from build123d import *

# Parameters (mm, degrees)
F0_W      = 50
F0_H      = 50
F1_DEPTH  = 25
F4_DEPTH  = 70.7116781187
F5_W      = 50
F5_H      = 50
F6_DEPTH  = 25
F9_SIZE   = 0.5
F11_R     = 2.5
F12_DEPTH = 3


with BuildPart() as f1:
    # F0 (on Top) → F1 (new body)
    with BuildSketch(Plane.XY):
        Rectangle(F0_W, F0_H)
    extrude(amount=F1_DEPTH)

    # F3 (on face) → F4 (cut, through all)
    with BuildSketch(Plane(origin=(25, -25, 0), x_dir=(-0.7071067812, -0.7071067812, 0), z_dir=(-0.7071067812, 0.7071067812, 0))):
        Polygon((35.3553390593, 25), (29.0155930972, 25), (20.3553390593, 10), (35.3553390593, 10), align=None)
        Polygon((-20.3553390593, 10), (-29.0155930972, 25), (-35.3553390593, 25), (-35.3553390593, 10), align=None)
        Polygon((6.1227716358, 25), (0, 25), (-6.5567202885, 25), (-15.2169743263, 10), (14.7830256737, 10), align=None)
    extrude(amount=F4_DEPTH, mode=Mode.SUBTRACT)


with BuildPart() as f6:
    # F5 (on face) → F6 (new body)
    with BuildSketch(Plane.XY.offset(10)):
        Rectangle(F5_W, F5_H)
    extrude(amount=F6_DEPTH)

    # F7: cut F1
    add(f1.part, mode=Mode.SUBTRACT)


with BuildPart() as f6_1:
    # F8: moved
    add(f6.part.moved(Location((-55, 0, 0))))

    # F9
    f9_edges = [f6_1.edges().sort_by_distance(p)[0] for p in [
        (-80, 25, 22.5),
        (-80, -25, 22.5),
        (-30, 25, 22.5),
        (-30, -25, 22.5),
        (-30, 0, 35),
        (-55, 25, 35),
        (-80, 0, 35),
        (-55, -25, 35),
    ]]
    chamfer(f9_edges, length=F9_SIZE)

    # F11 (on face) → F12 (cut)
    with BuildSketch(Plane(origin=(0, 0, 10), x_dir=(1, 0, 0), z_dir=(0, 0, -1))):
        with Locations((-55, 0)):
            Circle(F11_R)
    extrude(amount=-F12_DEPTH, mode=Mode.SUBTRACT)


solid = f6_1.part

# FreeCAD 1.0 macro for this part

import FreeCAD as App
import Part
import Sketcher

V = App.Vector
Q = App.Units.Quantity


def edges_at(feature, points):
    """Names of the edges that pass closest to the given points."""
    edges = feature.Shape.Edges
    near = lambda p: min(range(len(edges)), key=lambda i: edges[i].distToShape(Part.Vertex(*p))[0])
    return sorted({f"Edge{near(p) + 1}" for p in points})

doc = App.newDocument("Part")
body = doc.addObject("PartDesign::Body", "Body")

sketch1 = body.newObject("Sketcher::SketchObject", "Sketch")
sketch1.AttachmentSupport = (doc.getObject("XY_Plane"), [""])
sketch1.MapMode = "FlatFace"
sketch1.addGeometry([
    Part.LineSegment(V(-25, 25, 0), V(-25, -25, 0)),
    Part.LineSegment(V(-25, -25, 0), V(25, -25, 0)),
    Part.LineSegment(V(25, -25, 0), V(25, 25, 0)),
    Part.LineSegment(V(25, 25, 0), V(-25, 25, 0)),
], False)
sketch1.addConstraint([
    Sketcher.Constraint("Coincident", 0, 2, 1, 1),
    Sketcher.Constraint("Coincident", 1, 2, 2, 1),
    Sketcher.Constraint("Coincident", 2, 2, 3, 1),
    Sketcher.Constraint("Coincident", 3, 2, 0, 1),
    Sketcher.Constraint("Vertical", 0),
    Sketcher.Constraint("Horizontal", 1),
    Sketcher.Constraint("Vertical", 2),
    Sketcher.Constraint("Horizontal", 3),
    Sketcher.Constraint("Symmetric", 0, 2, 2, 2, -1, 1),
    Sketcher.Constraint("Equal", 3, 0),
    Sketcher.Constraint("DistanceX", 1, 1, 1, 2, Q("50 mm")),
])
pad1 = body.newObject("PartDesign::Pad", "Pad")
pad1.Profile = sketch1
pad1.Length = 25

sketch2 = body.newObject("Sketcher::SketchObject", "Sketch001")
sketch2.Placement = App.Placement(V(25, -25, 0), App.Rotation(V(-0.707106781, -0.707106781, 0), V(0, 0, 0.999999999), V(-0.707106781, 0.707106781, 0), "ZXY"))
sketch2.addGeometry([
    Part.LineSegment(V(35.355339, 25, 0), V(29.015593, 25, 0)),
    Part.LineSegment(V(29.015593, 25, 0), V(20.355339, 10, 0)),
    Part.LineSegment(V(20.355339, 10, 0), V(35.355339, 10, 0)),
    Part.LineSegment(V(35.355339, 10, 0), V(35.355339, 25, 0)),
    Part.LineSegment(V(-20.355339, 10, 0), V(-29.015593, 25, 0)),
    Part.LineSegment(V(-29.015593, 25, 0), V(-35.355339, 25, 0)),
    Part.LineSegment(V(-35.355339, 25, 0), V(-35.355339, 10, 0)),
    Part.LineSegment(V(-35.355339, 10, 0), V(-20.355339, 10, 0)),
    Part.LineSegment(V(6.122772, 25, 0), V(-6.55672, 25, 0)),
    Part.LineSegment(V(-6.55672, 25, 0), V(-15.216974, 10, 0)),
    Part.LineSegment(V(-15.216974, 10, 0), V(14.783026, 10, 0)),
    Part.LineSegment(V(14.783026, 10, 0), V(6.122772, 25, 0)),
], False)
sketch2.addConstraint([
    Sketcher.Constraint("Coincident", 0, 2, 1, 1),
    Sketcher.Constraint("Coincident", 1, 2, 2, 1),
    Sketcher.Constraint("Coincident", 2, 2, 3, 1),
    Sketcher.Constraint("Coincident", 3, 2, 0, 1),
    Sketcher.Constraint("Coincident", 4, 2, 5, 1),
    Sketcher.Constraint("Coincident", 5, 2, 6, 1),
    Sketcher.Constraint("Coincident", 6, 2, 7, 1),
    Sketcher.Constraint("Coincident", 7, 2, 4, 1),
    Sketcher.Constraint("Coincident", 8, 2, 9, 1),
    Sketcher.Constraint("Coincident", 9, 2, 10, 1),
    Sketcher.Constraint("Coincident", 10, 2, 11, 1),
    Sketcher.Constraint("Coincident", 11, 2, 8, 1),
    Sketcher.Constraint("Horizontal", 0),
    Sketcher.Constraint("Horizontal", 2),
    Sketcher.Constraint("Vertical", 3),
    Sketcher.Constraint("Horizontal", 5),
    Sketcher.Constraint("Vertical", 6),
    Sketcher.Constraint("Horizontal", 7),
    Sketcher.Constraint("Horizontal", 8),
    Sketcher.Constraint("Horizontal", 10),
    Sketcher.Constraint("Symmetric", 0, 2, 4, 2, -2),
    Sketcher.Constraint("Symmetric", 2, 2, 6, 2, -2),
    Sketcher.Constraint("Parallel", 1, 9),
    Sketcher.Constraint("Parallel", 4, 11),
    Sketcher.Constraint("Horizontal", 5, 2, 8, 2),
    Sketcher.Constraint("Horizontal", 7, 2, 9, 2),
    Sketcher.Constraint("Equal", 2, 7),
    Sketcher.Constraint("Equal", 7, 3),
    Sketcher.Constraint("DistanceX", 2, 1, 2, 2, Q("15 mm")),
    Sketcher.Constraint("DistanceX", 10, 1, 10, 2, Q("30 mm")),
    Sketcher.Constraint("Angle", 1, Q("-120 deg")),
    Sketcher.Constraint("DistanceY", -1, 1, 0, 2, Q("25 mm")),
    Sketcher.Constraint("DistanceX", -1, 1, 1, 2, Q("20.355339 mm")),
    Sketcher.Constraint("DistanceX", 8, 2, -1, 1, Q("6.55672 mm")),
])
pocket1 = body.newObject("PartDesign::Pocket", "Pocket")
pocket1.Profile = sketch2
pocket1.Type = "ThroughAll"
pocket1.Reversed = True
body2 = doc.addObject("PartDesign::Body", "Body001")

sketch3 = body2.newObject("Sketcher::SketchObject", "Sketch002")
sketch3.AttachmentSupport = (doc.getObject("XY_Plane001"), [""])
sketch3.MapMode = "FlatFace"
sketch3.AttachmentOffset = App.Placement(V(0, 0, 10), App.Rotation())
sketch3.addGeometry([
    Part.LineSegment(V(-25, 25, 0), V(-25, -25, 0)),
    Part.LineSegment(V(-25, -25, 0), V(25, -25, 0)),
    Part.LineSegment(V(25, -25, 0), V(25, 25, 0)),
    Part.LineSegment(V(25, 25, 0), V(-25, 25, 0)),
], False)
sketch3.addConstraint([
    Sketcher.Constraint("Coincident", 0, 2, 1, 1),
    Sketcher.Constraint("Coincident", 1, 2, 2, 1),
    Sketcher.Constraint("Coincident", 2, 2, 3, 1),
    Sketcher.Constraint("Coincident", 3, 2, 0, 1),
    Sketcher.Constraint("Vertical", 0),
    Sketcher.Constraint("Horizontal", 1),
    Sketcher.Constraint("Vertical", 2),
    Sketcher.Constraint("Horizontal", 3),
    Sketcher.Constraint("Symmetric", 0, 2, 2, 2, -1, 1),
    Sketcher.Constraint("Equal", 3, 0),
    Sketcher.Constraint("DistanceX", 1, 1, 1, 2, Q("50 mm")),
])
pad2 = body2.newObject("PartDesign::Pad", "Pad001")
pad2.Profile = sketch3
pad2.Length = 25
doc.recompute()

boolean = body2.newObject("PartDesign::Boolean", "Boolean")
boolean.Type = "Cut"
boolean.addObjects([body])
body3 = doc.addObject("PartDesign::Body", "Body002")
doc.recompute()

body2.Placement = App.Placement(V(-55, 0, 0), App.Rotation(V(0, 0, 1), 0))
boolean2 = body3.newObject("PartDesign::Boolean", "Boolean001")
boolean2.Type = "Fuse"
boolean2.addObjects([body2])
doc.recompute()

chamfer = body3.newObject("PartDesign::Chamfer", "Chamfer")
chamfer.Base = (boolean2, edges_at(boolean2, [
    (-80, 25, 22.5),
    (-80, -25, 22.5),
    (-30, 25, 22.5),
    (-30, -25, 22.5),
    (-30, 0, 35),
    (-55, 25, 35),
    (-80, 0, 35),
    (-55, -25, 35),
]))
chamfer.Size = 0.5

sketch4 = body3.newObject("Sketcher::SketchObject", "Sketch003")
sketch4.AttachmentSupport = (doc.getObject("XY_Plane002"), [""])
sketch4.MapMode = "FlatFace"
sketch4.AttachmentOffset = App.Placement(V(0, 0, 10), App.Rotation())
sketch4.addGeometry(Part.Circle(V(-55, 0, 0), V(0, 0, 1), 2.5), False)
sketch4.addConstraint([
    Sketcher.Constraint("PointOnObject", 0, 3, -1),
    Sketcher.Constraint("Diameter", 0, Q("5 mm")),
    Sketcher.Constraint("DistanceX", 0, 3, -1, 1, Q("55 mm")),
])
pocket2 = body3.newObject("PartDesign::Pocket", "Pocket001")
pocket2.Profile = sketch4
pocket2.Length = 3
pocket2.Reversed = True

doc.recompute()
